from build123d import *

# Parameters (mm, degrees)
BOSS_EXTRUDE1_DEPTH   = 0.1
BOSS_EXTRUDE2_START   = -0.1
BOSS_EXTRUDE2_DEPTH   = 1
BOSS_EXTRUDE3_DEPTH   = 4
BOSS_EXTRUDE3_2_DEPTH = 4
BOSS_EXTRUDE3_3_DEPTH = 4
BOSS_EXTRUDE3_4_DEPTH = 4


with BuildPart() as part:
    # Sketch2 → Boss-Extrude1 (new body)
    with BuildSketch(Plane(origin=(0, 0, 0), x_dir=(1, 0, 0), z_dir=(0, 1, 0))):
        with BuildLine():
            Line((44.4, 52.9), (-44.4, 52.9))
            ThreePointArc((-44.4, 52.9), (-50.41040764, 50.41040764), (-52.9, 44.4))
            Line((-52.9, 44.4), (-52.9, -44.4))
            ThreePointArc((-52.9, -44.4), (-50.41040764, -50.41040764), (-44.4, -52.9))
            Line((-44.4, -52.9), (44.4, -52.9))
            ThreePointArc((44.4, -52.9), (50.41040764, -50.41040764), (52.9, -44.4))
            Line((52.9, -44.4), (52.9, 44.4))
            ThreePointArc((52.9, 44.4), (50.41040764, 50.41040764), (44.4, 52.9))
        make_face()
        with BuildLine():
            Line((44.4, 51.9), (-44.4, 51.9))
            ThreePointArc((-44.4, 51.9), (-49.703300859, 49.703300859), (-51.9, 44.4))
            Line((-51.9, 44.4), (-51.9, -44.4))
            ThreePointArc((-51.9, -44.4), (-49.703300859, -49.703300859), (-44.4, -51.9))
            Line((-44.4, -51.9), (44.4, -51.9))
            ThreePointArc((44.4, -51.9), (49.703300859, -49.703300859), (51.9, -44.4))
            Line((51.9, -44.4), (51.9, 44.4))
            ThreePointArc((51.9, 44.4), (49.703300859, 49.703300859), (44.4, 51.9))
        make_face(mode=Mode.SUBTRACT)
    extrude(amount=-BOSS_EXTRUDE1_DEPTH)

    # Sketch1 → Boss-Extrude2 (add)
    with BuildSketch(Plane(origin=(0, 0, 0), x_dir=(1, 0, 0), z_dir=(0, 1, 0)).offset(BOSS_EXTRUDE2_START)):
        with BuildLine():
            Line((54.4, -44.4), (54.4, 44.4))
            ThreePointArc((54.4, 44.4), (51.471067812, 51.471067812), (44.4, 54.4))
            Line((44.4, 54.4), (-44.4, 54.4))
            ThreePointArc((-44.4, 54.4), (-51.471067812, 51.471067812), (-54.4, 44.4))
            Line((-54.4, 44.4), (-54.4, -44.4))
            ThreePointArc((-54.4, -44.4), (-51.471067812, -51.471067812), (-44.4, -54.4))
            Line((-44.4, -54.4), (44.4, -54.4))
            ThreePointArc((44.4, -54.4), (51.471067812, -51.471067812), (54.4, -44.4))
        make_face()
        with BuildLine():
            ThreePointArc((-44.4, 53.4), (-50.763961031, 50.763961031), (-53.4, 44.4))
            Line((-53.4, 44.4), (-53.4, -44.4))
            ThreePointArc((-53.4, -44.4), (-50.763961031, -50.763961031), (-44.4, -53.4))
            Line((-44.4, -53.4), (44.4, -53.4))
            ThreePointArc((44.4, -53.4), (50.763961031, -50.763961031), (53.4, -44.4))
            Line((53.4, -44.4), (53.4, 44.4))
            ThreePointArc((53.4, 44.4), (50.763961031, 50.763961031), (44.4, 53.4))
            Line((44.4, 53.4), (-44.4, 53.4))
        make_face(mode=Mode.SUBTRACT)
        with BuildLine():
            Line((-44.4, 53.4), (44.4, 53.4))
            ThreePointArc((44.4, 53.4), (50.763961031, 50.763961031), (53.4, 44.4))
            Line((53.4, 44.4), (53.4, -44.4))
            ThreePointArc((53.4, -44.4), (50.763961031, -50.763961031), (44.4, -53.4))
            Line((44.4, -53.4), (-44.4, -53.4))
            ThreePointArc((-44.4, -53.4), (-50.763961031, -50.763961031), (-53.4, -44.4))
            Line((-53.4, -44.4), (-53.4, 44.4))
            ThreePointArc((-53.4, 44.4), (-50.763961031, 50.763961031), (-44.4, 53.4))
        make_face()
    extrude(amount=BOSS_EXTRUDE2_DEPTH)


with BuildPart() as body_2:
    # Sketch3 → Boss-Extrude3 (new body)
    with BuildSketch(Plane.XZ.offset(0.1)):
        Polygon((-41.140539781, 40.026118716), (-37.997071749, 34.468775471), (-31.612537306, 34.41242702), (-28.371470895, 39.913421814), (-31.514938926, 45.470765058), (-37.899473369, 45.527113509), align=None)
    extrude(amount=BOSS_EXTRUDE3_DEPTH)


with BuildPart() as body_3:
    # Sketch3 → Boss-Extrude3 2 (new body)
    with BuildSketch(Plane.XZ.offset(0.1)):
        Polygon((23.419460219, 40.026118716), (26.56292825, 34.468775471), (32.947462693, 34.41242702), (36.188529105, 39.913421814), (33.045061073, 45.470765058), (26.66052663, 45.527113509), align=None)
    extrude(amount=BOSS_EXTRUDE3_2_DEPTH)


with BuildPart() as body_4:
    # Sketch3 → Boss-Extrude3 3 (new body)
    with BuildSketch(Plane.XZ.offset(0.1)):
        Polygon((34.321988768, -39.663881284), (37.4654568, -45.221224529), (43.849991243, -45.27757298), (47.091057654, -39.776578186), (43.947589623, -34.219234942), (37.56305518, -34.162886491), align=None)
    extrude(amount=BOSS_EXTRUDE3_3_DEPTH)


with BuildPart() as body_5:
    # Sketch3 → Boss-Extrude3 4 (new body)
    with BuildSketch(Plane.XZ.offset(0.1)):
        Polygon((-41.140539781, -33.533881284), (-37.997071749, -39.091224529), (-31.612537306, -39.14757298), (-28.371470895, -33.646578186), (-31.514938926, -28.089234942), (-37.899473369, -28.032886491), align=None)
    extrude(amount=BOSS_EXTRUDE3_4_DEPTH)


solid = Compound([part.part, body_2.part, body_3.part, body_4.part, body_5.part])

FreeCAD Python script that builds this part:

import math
import FreeCAD as App
import Part
import Sketcher
from FreeCAD import Vector
Q = App.Units.Quantity

doc = App.newDocument("Part")
params = doc.addObject("Spreadsheet::Sheet", "Params")
for row, (alias, value) in enumerate([
    ("sketch1_radius", "8.5 mm"),
    ("sketch1_radius2", "7.5 mm"),
    ("sketch1_width", "88.8 mm"),
    ("pad1_length", "0.1 mm"),
    ("sketch2_radius", "10 mm"),
    ("sketch2_width", "88.8 mm"),
    ("pad2_length", "1 mm"),
    ("pad3_length", "4 mm"),
    ("pad4_length", "4 mm"),
    ("pad5_length", "4 mm"),
    ("pad6_length", "4 mm"),
], start=1):
    params.set(f"A{row}", alias)
    params.set(f"B{row}", "=" + value)
    params.setAlias(f"B{row}", alias)

body = doc.addObject("PartDesign::Body", "Body")

# Sketch on XZ plane
sketch1 = doc.addObject("Sketcher::SketchObject", "Sketch")
body.addObject(sketch1)
sketch1.AttachmentSupport = (doc.XZ_Plane, [""])
sketch1.MapMode = "FlatFace"
sketch1.addGeometry([
    Part.LineSegment(Vector(44, -53, 0), Vector(-44, -53, 0)),  # 0
    Part.ArcOfCircle(Part.Circle(Vector(-44, -44, 0), Vector(0, 0, 1), 8), math.radians(180), math.radians(270)),  # 1
    Part.LineSegment(Vector(-53, -44, 0), Vector(-53, 44, 0)),  # 2
    Part.ArcOfCircle(Part.Circle(Vector(-44, 44, 0), Vector(0, 0, 1), 8), math.radians(90), math.radians(180)),  # 3
    Part.LineSegment(Vector(-44, 53, 0), Vector(44, 53, 0)),  # 4
    Part.ArcOfCircle(Part.Circle(Vector(44, 44, 0), Vector(0, 0, 1), 8), math.radians(0), math.radians(90)),  # 5
    Part.LineSegment(Vector(53, 44, 0), Vector(53, -44, 0)),  # 6
    Part.ArcOfCircle(Part.Circle(Vector(44, -44, 0), Vector(0, 0, 1), 8), math.radians(-90), math.radians(0)),  # 7
    Part.LineSegment(Vector(-44, -52, 0), Vector(44, -52, 0)),  # 8
    Part.ArcOfCircle(Part.Circle(Vector(44, -44, 0), Vector(0, 0, 1), 8), math.radians(-90), math.radians(0)),  # 9
    Part.LineSegment(Vector(52, -44, 0), Vector(52, 44, 0)),  # 10
    Part.ArcOfCircle(Part.Circle(Vector(44, 44, 0), Vector(0, 0, 1), 8), math.radians(0), math.radians(90)),  # 11
    Part.LineSegment(Vector(44, 52, 0), Vector(-44, 52, 0)),  # 12
    Part.ArcOfCircle(Part.Circle(Vector(-44, 44, 0), Vector(0, 0, 1), 8), math.radians(90), math.radians(180)),  # 13
    Part.LineSegment(Vector(-52, 44, 0), Vector(-52, -44, 0)),  # 14
    Part.ArcOfCircle(Part.Circle(Vector(-44, -44, 0), Vector(0, 0, 1), 8), math.radians(180), math.radians(270)),  # 15
], False)
sketch1.addConstraint([
    Sketcher.Constraint("Tangent", 0, 2, 1, 2),
    Sketcher.Constraint("Tangent", 1, 1, 2, 1),
    Sketcher.Constraint("Tangent", 2, 2, 3, 2),
    Sketcher.Constraint("Tangent", 3, 1, 4, 1),
    Sketcher.Constraint("Tangent", 4, 2, 5, 2),
    Sketcher.Constraint("Tangent", 5, 1, 6, 1),
    Sketcher.Constraint("Tangent", 6, 2, 7, 2),
    Sketcher.Constraint("Tangent", 7, 1, 0, 1),
    Sketcher.Constraint("Tangent", 8, 2, 9, 1),
    Sketcher.Constraint("Tangent", 9, 2, 10, 1),
    Sketcher.Constraint("Tangent", 10, 2, 11, 1),
    Sketcher.Constraint("Tangent", 11, 2, 12, 1),
    Sketcher.Constraint("Tangent", 12, 2, 13, 1),
    Sketcher.Constraint("Tangent", 13, 2, 14, 1),
    Sketcher.Constraint("Tangent", 14, 2, 15, 1),
    Sketcher.Constraint("Tangent", 15, 2, 8, 1),
    Sketcher.Constraint("Horizontal", 0),
    Sketcher.Constraint("Vertical", 2),
    Sketcher.Constraint("Horizontal", 4),
    Sketcher.Constraint("Vertical", 6),
    Sketcher.Constraint("Horizontal", 8),
    Sketcher.Constraint("Vertical", 10),
    Sketcher.Constraint("Horizontal", 12),
    Sketcher.Constraint("Vertical", 14),
    Sketcher.Constraint("Coincident", 9, 3, 7, 3),
    Sketcher.Constraint("Coincident", 11, 3, 5, 3),
    Sketcher.Constraint("Coincident", 13, 3, 3, 3),
    Sketcher.Constraint("Equal", 1, 3),
    Sketcher.Constraint("Equal", 3, 5),
    Sketcher.Constraint("Equal", 5, 7),
    Sketcher.Constraint("Equal", 13, 15),
    Sketcher.Constraint("Symmetric", 1, 3, 5, 3, -1, 1),
    Sketcher.Constraint("Equal", 12, 2),
    Sketcher.Constraint("Radius", 1, Q("8.5 mm")),
    Sketcher.Constraint("Radius", 9, Q("7.5 mm")),
    Sketcher.Constraint("DistanceX", 0, 2, 0, 1, Q("88.8 mm")),
])
sketch1.setExpression("Constraints[33]", "Params.sketch1_radius")
sketch1.setExpression("Constraints[34]", "Params.sketch1_radius2")
sketch1.setExpression("Constraints[35]", "Params.sketch1_width")
pad1 = doc.addObject("PartDesign::Pad", "Pad")
body.addObject(pad1)
pad1.Profile = sketch1
pad1.setExpression("Length", "Params.pad1_length")

# Sketch on XZ plane
sketch2 = doc.addObject("Sketcher::SketchObject", "Sketch001")
body.addObject(sketch2)
sketch2.AttachmentSupport = (doc.XZ_Plane, [""])
sketch2.MapMode = "FlatFace"
sketch2.AttachmentOffset = App.Placement(Vector(0, 0, 0.1), App.Rotation())
sketch2.addGeometry([
    Part.LineSegment(Vector(54, 44, 0), Vector(54, -44, 0)),  # 0
    Part.ArcOfCircle(Part.Circle(Vector(44, -44, 0), Vector(0, 0, 1), 10), math.radians(-90), math.radians(0)),  # 1
    Part.LineSegment(Vector(44, -54, 0), Vector(-44, -54, 0)),  # 2
    Part.ArcOfCircle(Part.Circle(Vector(-44, -44, 0), Vector(0, 0, 1), 10), math.radians(180), math.radians(270)),  # 3
    Part.LineSegment(Vector(-54, -44, 0), Vector(-54, 44, 0)),  # 4
    Part.ArcOfCircle(Part.Circle(Vector(-44, 44, 0), Vector(0, 0, 1), 10), math.radians(90), math.radians(180)),  # 5
    Part.LineSegment(Vector(-44, 54, 0), Vector(44, 54, 0)),  # 6
    Part.ArcOfCircle(Part.Circle(Vector(44, 44, 0), Vector(0, 0, 1), 10), math.radians(0), math.radians(90)),  # 7
], False)
sketch2.addConstraint([
    Sketcher.Constraint("Tangent", 0, 2, 1, 2),
    Sketcher.Constraint("Tangent", 1, 1, 2, 1),
    Sketcher.Constraint("Tangent", 2, 2, 3, 2),
    Sketcher.Constraint("Tangent", 3, 1, 4, 1),
    Sketcher.Constraint("Tangent", 4, 2, 5, 2),
    Sketcher.Constraint("Tangent", 5, 1, 6, 1),
    Sketcher.Constraint("Tangent", 6, 2, 7, 2),
    Sketcher.Constraint("Tangent", 7, 1, 0, 1),
    Sketcher.Constraint("Vertical", 0),
    Sketcher.Constraint("Horizontal", 2),
    Sketcher.Constraint("Vertical", 4),
    Sketcher.Constraint("Horizontal", 6),
    Sketcher.Constraint("Equal", 1, 3),
    Sketcher.Constraint("Equal", 3, 5),
    Sketcher.Constraint("Equal", 5, 7),
    Sketcher.Constraint("Symmetric", 1, 3, 5, 3, -1, 1),
    Sketcher.Constraint("Equal", 6, 0),
    Sketcher.Constraint("Radius", 1, Q("10 mm")),
    Sketcher.Constraint("DistanceX", 2, 2, 2, 1, Q("88.8 mm")),
])
sketch2.setExpression("Constraints[17]", "Params.sketch2_radius")
sketch2.setExpression("Constraints[18]", "Params.sketch2_width")
pad2 = doc.addObject("PartDesign::Pad", "Pad001")
body.addObject(pad2)
pad2.Profile = sketch2
pad2.setExpression("Length", "Params.pad2_length")
pad2.Reversed = True
body2 = doc.addObject("PartDesign::Body", "Body001")

# Sketch on XZ plane
sketch3 = doc.addObject("Sketcher::SketchObject", "Sketch002")
body2.addObject(sketch3)
sketch3.AttachmentSupport = (doc.getObject("XZ_Plane001"), [""])
sketch3.MapMode = "FlatFace"
sketch3.AttachmentOffset = App.Placement(Vector(0, 0, 0.1), App.Rotation())
sketch3.addGeometry([
    Part.LineSegment(Vector(-41, 40, 0), Vector(-38, 34, 0)),  # 0
    Part.LineSegment(Vector(-38, 34, 0), Vector(-32, 34, 0)),  # 1
    Part.LineSegment(Vector(-32, 34, 0), Vector(-28, 40, 0)),  # 2
    Part.LineSegment(Vector(-28, 40, 0), Vector(-32, 45, 0)),  # 3
    Part.LineSegment(Vector(-32, 45, 0), Vector(-38, 46, 0)),  # 4
    Part.LineSegment(Vector(-38, 46, 0), Vector(-41, 40, 0)),  # 5
], False)
sketch3.addConstraint([
    Sketcher.Constraint("Coincident", 0, 2, 1, 1),
    Sketcher.Constraint("Coincident", 1, 2, 2, 1),
    Sketcher.Constraint("Coincident", 2, 2, 3, 1),
    Sketcher.Constraint("Coincident", 3, 2, 4, 1),
    Sketcher.Constraint("Coincident", 4, 2, 5, 1),
    Sketcher.Constraint("Coincident", 5, 2, 0, 1),
    Sketcher.Constraint("Parallel", 0, 3),
    Sketcher.Constraint("Parallel", 1, 4),
    Sketcher.Constraint("Parallel", 2, 5),
    Sketcher.Constraint("Equal", 0, 1),
    Sketcher.Constraint("Equal", 1, 2),
    Sketcher.Constraint("Equal", 2, 3),
    Sketcher.Constraint("DistanceX", 0, 2, 2, 2, Q("9.625601 mm")),
    Sketcher.Constraint("DistanceX", 1, 2, 3, 2, Q("0.097598 mm")),
    Sketcher.Constraint("DistanceX", 0, 2, -1, 1, Q("37.997072 mm")),
    Sketcher.Constraint("DistanceY", -1, 1, 2, 2, Q("39.913422 mm")),
    Sketcher.Constraint("DistanceX", 3, 2, -1, 1, Q("31.514939 mm")),
    Sketcher.Constraint("DistanceY", -1, 1, 5, 2, Q("40.026119 mm")),
])
pad3 = doc.addObject("PartDesign::Pad", "Pad002")
body2.addObject(pad3)
pad3.Profile = sketch3
pad3.setExpression("Length", "Params.pad3_length")
body3 = doc.addObject("PartDesign::Body", "Body002")

# Sketch on XZ plane
sketch4 = doc.addObject("Sketcher::SketchObject", "Sketch003")
body3.addObject(sketch4)
sketch4.AttachmentSupport = (doc.getObject("XZ_Plane002"), [""])
sketch4.MapMode = "FlatFace"
sketch4.AttachmentOffset = App.Placement(Vector(0, 0, 0.1), App.Rotation())
sketch4.addGeometry([
    Part.LineSegment(Vector(23, 40, 0), Vector(27, 34, 0)),  # 0
    Part.LineSegment(Vector(27, 34, 0), Vector(33, 34, 0)),  # 1
    Part.LineSegment(Vector(33, 34, 0), Vector(36, 40, 0)),  # 2
    Part.LineSegment(Vector(36, 40, 0), Vector(33, 45, 0)),  # 3
    Part.LineSegment(Vector(33, 45, 0), Vector(27, 46, 0)),  # 4
    Part.LineSegment(Vector(27, 46, 0), Vector(23, 40, 0)),  # 5
], False)
sketch4.addConstraint([
    Sketcher.Constraint("Coincident", 0, 2, 1, 1),
    Sketcher.Constraint("Coincident", 1, 2, 2, 1),
    Sketcher.Constraint("Coincident", 2, 2, 3, 1),
    Sketcher.Constraint("Coincident", 3, 2, 4, 1),
    Sketcher.Constraint("Coincident", 4, 2, 5, 1),
    Sketcher.Constraint("Coincident", 5, 2, 0, 1),
    Sketcher.Constraint("Parallel", 0, 3),
    Sketcher.Constraint("Parallel", 1, 4),
    Sketcher.Constraint("Parallel", 2, 5),
    Sketcher.Constraint("Equal", 0, 1),
    Sketcher.Constraint("Equal", 1, 2),
    Sketcher.Constraint("Equal", 2, 3),
    Sketcher.Constraint("DistanceX", 0, 2, 2, 2, Q("9.625601 mm")),
    Sketcher.Constraint("DistanceX", 1, 2, 3, 2, Q("0.097598 mm")),
    Sketcher.Constraint("DistanceX", -1, 1, 0, 2, Q("26.562928 mm")),
    Sketcher.Constraint("DistanceY", -1, 1, 2, 2, Q("39.913422 mm")),
    Sketcher.Constraint("DistanceX", -1, 1, 3, 2, Q("33.045061 mm")),
    Sketcher.Constraint("DistanceY", -1, 1, 5, 2, Q("40.026119 mm")),
])
pad4 = doc.addObject("PartDesign::Pad", "Pad003")
body3.addObject(pad4)
pad4.Profile = sketch4
pad4.setExpression("Length", "Params.pad4_length")
body4 = doc.addObject("PartDesign::Body", "Body003")

# Sketch on XZ plane
sketch5 = doc.addObject("Sketcher::SketchObject", "Sketch004")
body4.addObject(sketch5)
sketch5.AttachmentSupport = (doc.getObject("XZ_Plane003"), [""])
sketch5.MapMode = "FlatFace"
sketch5.AttachmentOffset = App.Placement(Vector(0, 0, 0.1), App.Rotation())
sketch5.addGeometry([
    Part.LineSegment(Vector(34.321989, -39.663881, 0), Vector(37.465457, -45.221225, 0)),  # 0
    Part.LineSegment(Vector(37.465457, -45.221225, 0), Vector(43.849991, -45.277573, 0)),  # 1
    Part.LineSegment(Vector(43.849991, -45.277573, 0), Vector(47.091058, -39.776578, 0)),  # 2
    Part.LineSegment(Vector(47.091058, -39.776578, 0), Vector(43.94759, -34.219235, 0)),  # 3
    Part.LineSegment(Vector(43.94759, -34.219235, 0), Vector(37.563055, -34.162886, 0)),  # 4
    Part.LineSegment(Vector(37.563055, -34.162886, 0), Vector(34.321989, -39.663881, 0)),  # 5
], False)
sketch5.addConstraint([
    Sketcher.Constraint("Coincident", 0, 2, 1, 1),
    Sketcher.Constraint("Coincident", 1, 2, 2, 1),
    Sketcher.Constraint("Coincident", 2, 2, 3, 1),
    Sketcher.Constraint("Coincident", 3, 2, 4, 1),
    Sketcher.Constraint("Coincident", 4, 2, 5, 1),
    Sketcher.Constraint("Coincident", 5, 2, 0, 1),
    Sketcher.Constraint("DistanceX", 0, 2, 2, 2, Q("9.625601 mm")),
    Sketcher.Constraint("DistanceX", 1, 2, 3, 2, Q("0.097598 mm")),
    Sketcher.Constraint("DistanceX", 0, 2, 4, 2, Q("0.097598 mm")),
    Sketcher.Constraint("DistanceX", 5, 2, 3, 2, Q("9.625601 mm")),
    Sketcher.Constraint("DistanceX", -1, 1, 1, 2, Q("43.849991 mm")),
    Sketcher.Constraint("DistanceY", 2, 2, -1, 1, Q("39.776578 mm")),
    Sketcher.Constraint("DistanceY", 5, 2, -1, 1, Q("39.663881 mm")),
    Sketcher.Constraint("DistanceY", 1, 2, 0, 2, Q("0.056348 mm")),
    Sketcher.Constraint("DistanceX", 3, 2, 2, 2, Q("3.143468 mm")),
    Sketcher.Constraint("DistanceY", 1, 2, 3, 2, Q("11.058338 mm")),
    Sketcher.Constraint("DistanceY", 3, 2, 4, 2, Q("0.056348 mm")),
    Sketcher.Constraint("DistanceY", 2, 2, 4, 2, Q("5.613692 mm")),
])
pad5 = doc.addObject("PartDesign::Pad", "Pad004")
body4.addObject(pad5)
pad5.Profile = sketch5
pad5.setExpression("Length", "Params.pad5_length")
body5 = doc.addObject("PartDesign::Body", "Body004")

# Sketch on XZ plane
sketch6 = doc.addObject("Sketcher::SketchObject", "Sketch005")
body5.addObject(sketch6)
sketch6.AttachmentSupport = (doc.getObject("XZ_Plane004"), [""])
sketch6.MapMode = "FlatFace"
sketch6.AttachmentOffset = App.Placement(Vector(0, 0, 0.1), App.Rotation())
sketch6.addGeometry([
    Part.LineSegment(Vector(-41, -34, 0), Vector(-38, -39, 0)),  # 0
    Part.LineSegment(Vector(-38, -39, 0), Vector(-32, -39, 0)),  # 1
    Part.LineSegment(Vector(-32, -39, 0), Vector(-28, -34, 0)),  # 2
    Part.LineSegment(Vector(-28, -34, 0), Vector(-32, -28, 0)),  # 3
    Part.LineSegment(Vector(-32, -28, 0), Vector(-38, -28, 0)),  # 4
    Part.LineSegment(Vector(-38, -28, 0), Vector(-41, -34, 0)),  # 5
], False)
sketch6.addConstraint([
    Sketcher.Constraint("Coincident", 0, 2, 1, 1),
    Sketcher.Constraint("Coincident", 1, 2, 2, 1),
    Sketcher.Constraint("Coincident", 2, 2, 3, 1),
    Sketcher.Constraint("Coincident", 3, 2, 4, 1),
    Sketcher.Constraint("Coincident", 4, 2, 5, 1),
    Sketcher.Constraint("Coincident", 5, 2, 0, 1),
    Sketcher.Constraint("Parallel", 0, 3),
    Sketcher.Constraint("Parallel", 1, 4),
    Sketcher.Constraint("Parallel", 2, 5),
    Sketcher.Constraint("Equal", 0, 1),
    Sketcher.Constraint("Equal", 1, 2),
    Sketcher.Constraint("Equal", 2, 3),
    Sketcher.Constraint("DistanceX", 0, 2, 2, 2, Q("9.625601 mm")),
    Sketcher.Constraint("DistanceX", 1, 2, 3, 2, Q("0.097598 mm")),
    Sketcher.Constraint("DistanceX", 0, 2, -1, 1, Q("37.997072 mm")),
    Sketcher.Constraint("DistanceY", 2, 2, -1, 1, Q("33.646578 mm")),
    Sketcher.Constraint("DistanceX", 3, 2, -1, 1, Q("31.514939 mm")),
    Sketcher.Constraint("DistanceY", 5, 2, -1, 1, Q("33.533881 mm")),
])
pad6 = doc.addObject("PartDesign::Pad", "Pad005")
body5.addObject(pad6)
pad6.Profile = sketch6
pad6.setExpression("Length", "Params.pad6_length")

doc.recompute()
